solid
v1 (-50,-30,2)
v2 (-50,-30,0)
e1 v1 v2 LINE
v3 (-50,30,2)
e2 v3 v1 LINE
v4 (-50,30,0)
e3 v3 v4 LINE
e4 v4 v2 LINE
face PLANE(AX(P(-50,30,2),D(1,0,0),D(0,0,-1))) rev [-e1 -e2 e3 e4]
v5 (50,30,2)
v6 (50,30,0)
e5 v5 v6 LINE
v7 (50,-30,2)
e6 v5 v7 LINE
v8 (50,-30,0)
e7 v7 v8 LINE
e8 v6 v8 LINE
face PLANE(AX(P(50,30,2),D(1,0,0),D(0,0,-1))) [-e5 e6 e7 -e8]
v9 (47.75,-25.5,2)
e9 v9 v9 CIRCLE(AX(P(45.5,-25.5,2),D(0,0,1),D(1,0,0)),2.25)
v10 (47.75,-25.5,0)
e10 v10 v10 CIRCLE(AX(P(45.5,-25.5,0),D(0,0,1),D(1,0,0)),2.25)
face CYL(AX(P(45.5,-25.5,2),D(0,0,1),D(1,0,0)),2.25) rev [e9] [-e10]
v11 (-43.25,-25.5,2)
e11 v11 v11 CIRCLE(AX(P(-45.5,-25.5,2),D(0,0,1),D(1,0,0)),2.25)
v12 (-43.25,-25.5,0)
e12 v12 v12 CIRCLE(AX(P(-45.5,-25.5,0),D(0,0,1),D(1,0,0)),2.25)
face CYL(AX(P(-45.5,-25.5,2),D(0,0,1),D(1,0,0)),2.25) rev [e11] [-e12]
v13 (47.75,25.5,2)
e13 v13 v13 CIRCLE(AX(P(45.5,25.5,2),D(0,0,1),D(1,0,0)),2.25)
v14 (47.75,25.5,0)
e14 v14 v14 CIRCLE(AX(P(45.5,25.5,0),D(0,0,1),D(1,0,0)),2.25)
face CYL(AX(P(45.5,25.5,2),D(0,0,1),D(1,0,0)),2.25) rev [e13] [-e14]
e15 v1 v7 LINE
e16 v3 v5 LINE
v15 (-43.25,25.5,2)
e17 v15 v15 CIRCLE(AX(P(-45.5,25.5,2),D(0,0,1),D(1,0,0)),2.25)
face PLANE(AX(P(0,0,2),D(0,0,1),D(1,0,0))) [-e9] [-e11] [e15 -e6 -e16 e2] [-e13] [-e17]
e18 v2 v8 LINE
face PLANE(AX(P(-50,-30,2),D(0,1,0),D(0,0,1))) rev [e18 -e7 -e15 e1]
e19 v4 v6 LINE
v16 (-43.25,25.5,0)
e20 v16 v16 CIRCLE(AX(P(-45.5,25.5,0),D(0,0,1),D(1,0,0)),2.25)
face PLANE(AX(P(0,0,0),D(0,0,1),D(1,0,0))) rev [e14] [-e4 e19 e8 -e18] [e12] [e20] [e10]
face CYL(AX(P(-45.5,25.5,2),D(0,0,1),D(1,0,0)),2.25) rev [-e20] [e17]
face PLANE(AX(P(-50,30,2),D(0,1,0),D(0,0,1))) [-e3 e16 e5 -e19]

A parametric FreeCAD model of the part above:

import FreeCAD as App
import Part
import Sketcher

V = App.Vector
Q = App.Units.Quantity


def add_polygon(sketch, points):
    """Adds a closed chain of lines whose ends are joined by coincident constraints."""
    first, n = sketch.GeometryCount, len(points)
    for a, b in zip(points, points[1:] + points[:1]):
        sketch.addGeometry(Part.LineSegment(App.Vector(*a, 0), App.Vector(*b, 0)), False)
    for i in range(n):
        sketch.addConstraint(Sketcher.Constraint("Coincident", first + i, 2, first + (i + 1) % n, 1))

doc = App.newDocument("Part")
body = doc.addObject("PartDesign::Body", "Body")

# Sketch on XY plane
sketch1 = doc.addObject("Sketcher::SketchObject", "Sketch")
body.addObject(sketch1)
sketch1.AttachmentSupport = (doc.XY_Plane, [""])
sketch1.MapMode = "FlatFace"
add_polygon(sketch1, [(-50, 30), (-50, -30), (50, -30), (50, 30)])  # lines 0-3
sketch1.addConstraint([
    Sketcher.Constraint("Vertical", 0),
    Sketcher.Constraint("Horizontal", 1),
    Sketcher.Constraint("Vertical", 2),
    Sketcher.Constraint("Horizontal", 3),
    Sketcher.Constraint("Symmetric", 0, 2, 2, 2, -1, 1),
    Sketcher.Constraint("DistanceX", 1, 1, 1, 2, Q("100 mm")),
    Sketcher.Constraint("DistanceY", 0, 2, 0, 1, Q("60 mm")),
])
pad1 = doc.addObject("PartDesign::Pad", "Pad")
body.addObject(pad1)
pad1.Profile = sketch1
pad1.Length = 2

# Sketch on XY plane
sketch2 = doc.addObject("Sketcher::SketchObject", "Sketch001")
body.addObject(sketch2)
sketch2.AttachmentSupport = (doc.XY_Plane, [""])
sketch2.MapMode = "FlatFace"
sketch2.AttachmentOffset = App.Placement(V(0, 0, 2), App.Rotation())
sketch2.addGeometry([
    Part.Circle(V(-45.5, 25.5, 0), V(0, 0, 1), 2.2),
    Part.Circle(V(-45.5, -25.5, 0), V(0, 0, 1), 2.2),
    Part.Circle(V(45.5, -25.5, 0), V(0, 0, 1), 2.2),
    Part.Circle(V(45.5, 25.5, 0), V(0, 0, 1), 2.2),
], False)
sketch2.addConstraint([
    Sketcher.Constraint("Equal", 0, 1),
    Sketcher.Constraint("Equal", 1, 2),
    Sketcher.Constraint("Equal", 2, 3),
    Sketcher.Constraint("Symmetric", 0, 3, 2, 3, -1, 1),
    Sketcher.Constraint("Symmetric", 1, 3, 3, 3, -1, 1),
    Sketcher.Constraint("Symmetric", 1, 3, 2, 3, -2),
    Sketcher.Constraint("Diameter", 0, Q("4.5 mm")),
    Sketcher.Constraint("DistanceY", 1, 3, 0, 3, Q("51 mm")),
    Sketcher.Constraint("DistanceX", 1, 3, 2, 3, Q("91 mm")),
])
doc.recompute()
hole = doc.addObject("PartDesign::Hole", "Hole")
body.addObject(hole)
hole.Profile = sketch2
hole.ThreadType = "None"
hole.Diameter = 4.5
hole.DepthType = "ThroughAll"

doc.recompute()
